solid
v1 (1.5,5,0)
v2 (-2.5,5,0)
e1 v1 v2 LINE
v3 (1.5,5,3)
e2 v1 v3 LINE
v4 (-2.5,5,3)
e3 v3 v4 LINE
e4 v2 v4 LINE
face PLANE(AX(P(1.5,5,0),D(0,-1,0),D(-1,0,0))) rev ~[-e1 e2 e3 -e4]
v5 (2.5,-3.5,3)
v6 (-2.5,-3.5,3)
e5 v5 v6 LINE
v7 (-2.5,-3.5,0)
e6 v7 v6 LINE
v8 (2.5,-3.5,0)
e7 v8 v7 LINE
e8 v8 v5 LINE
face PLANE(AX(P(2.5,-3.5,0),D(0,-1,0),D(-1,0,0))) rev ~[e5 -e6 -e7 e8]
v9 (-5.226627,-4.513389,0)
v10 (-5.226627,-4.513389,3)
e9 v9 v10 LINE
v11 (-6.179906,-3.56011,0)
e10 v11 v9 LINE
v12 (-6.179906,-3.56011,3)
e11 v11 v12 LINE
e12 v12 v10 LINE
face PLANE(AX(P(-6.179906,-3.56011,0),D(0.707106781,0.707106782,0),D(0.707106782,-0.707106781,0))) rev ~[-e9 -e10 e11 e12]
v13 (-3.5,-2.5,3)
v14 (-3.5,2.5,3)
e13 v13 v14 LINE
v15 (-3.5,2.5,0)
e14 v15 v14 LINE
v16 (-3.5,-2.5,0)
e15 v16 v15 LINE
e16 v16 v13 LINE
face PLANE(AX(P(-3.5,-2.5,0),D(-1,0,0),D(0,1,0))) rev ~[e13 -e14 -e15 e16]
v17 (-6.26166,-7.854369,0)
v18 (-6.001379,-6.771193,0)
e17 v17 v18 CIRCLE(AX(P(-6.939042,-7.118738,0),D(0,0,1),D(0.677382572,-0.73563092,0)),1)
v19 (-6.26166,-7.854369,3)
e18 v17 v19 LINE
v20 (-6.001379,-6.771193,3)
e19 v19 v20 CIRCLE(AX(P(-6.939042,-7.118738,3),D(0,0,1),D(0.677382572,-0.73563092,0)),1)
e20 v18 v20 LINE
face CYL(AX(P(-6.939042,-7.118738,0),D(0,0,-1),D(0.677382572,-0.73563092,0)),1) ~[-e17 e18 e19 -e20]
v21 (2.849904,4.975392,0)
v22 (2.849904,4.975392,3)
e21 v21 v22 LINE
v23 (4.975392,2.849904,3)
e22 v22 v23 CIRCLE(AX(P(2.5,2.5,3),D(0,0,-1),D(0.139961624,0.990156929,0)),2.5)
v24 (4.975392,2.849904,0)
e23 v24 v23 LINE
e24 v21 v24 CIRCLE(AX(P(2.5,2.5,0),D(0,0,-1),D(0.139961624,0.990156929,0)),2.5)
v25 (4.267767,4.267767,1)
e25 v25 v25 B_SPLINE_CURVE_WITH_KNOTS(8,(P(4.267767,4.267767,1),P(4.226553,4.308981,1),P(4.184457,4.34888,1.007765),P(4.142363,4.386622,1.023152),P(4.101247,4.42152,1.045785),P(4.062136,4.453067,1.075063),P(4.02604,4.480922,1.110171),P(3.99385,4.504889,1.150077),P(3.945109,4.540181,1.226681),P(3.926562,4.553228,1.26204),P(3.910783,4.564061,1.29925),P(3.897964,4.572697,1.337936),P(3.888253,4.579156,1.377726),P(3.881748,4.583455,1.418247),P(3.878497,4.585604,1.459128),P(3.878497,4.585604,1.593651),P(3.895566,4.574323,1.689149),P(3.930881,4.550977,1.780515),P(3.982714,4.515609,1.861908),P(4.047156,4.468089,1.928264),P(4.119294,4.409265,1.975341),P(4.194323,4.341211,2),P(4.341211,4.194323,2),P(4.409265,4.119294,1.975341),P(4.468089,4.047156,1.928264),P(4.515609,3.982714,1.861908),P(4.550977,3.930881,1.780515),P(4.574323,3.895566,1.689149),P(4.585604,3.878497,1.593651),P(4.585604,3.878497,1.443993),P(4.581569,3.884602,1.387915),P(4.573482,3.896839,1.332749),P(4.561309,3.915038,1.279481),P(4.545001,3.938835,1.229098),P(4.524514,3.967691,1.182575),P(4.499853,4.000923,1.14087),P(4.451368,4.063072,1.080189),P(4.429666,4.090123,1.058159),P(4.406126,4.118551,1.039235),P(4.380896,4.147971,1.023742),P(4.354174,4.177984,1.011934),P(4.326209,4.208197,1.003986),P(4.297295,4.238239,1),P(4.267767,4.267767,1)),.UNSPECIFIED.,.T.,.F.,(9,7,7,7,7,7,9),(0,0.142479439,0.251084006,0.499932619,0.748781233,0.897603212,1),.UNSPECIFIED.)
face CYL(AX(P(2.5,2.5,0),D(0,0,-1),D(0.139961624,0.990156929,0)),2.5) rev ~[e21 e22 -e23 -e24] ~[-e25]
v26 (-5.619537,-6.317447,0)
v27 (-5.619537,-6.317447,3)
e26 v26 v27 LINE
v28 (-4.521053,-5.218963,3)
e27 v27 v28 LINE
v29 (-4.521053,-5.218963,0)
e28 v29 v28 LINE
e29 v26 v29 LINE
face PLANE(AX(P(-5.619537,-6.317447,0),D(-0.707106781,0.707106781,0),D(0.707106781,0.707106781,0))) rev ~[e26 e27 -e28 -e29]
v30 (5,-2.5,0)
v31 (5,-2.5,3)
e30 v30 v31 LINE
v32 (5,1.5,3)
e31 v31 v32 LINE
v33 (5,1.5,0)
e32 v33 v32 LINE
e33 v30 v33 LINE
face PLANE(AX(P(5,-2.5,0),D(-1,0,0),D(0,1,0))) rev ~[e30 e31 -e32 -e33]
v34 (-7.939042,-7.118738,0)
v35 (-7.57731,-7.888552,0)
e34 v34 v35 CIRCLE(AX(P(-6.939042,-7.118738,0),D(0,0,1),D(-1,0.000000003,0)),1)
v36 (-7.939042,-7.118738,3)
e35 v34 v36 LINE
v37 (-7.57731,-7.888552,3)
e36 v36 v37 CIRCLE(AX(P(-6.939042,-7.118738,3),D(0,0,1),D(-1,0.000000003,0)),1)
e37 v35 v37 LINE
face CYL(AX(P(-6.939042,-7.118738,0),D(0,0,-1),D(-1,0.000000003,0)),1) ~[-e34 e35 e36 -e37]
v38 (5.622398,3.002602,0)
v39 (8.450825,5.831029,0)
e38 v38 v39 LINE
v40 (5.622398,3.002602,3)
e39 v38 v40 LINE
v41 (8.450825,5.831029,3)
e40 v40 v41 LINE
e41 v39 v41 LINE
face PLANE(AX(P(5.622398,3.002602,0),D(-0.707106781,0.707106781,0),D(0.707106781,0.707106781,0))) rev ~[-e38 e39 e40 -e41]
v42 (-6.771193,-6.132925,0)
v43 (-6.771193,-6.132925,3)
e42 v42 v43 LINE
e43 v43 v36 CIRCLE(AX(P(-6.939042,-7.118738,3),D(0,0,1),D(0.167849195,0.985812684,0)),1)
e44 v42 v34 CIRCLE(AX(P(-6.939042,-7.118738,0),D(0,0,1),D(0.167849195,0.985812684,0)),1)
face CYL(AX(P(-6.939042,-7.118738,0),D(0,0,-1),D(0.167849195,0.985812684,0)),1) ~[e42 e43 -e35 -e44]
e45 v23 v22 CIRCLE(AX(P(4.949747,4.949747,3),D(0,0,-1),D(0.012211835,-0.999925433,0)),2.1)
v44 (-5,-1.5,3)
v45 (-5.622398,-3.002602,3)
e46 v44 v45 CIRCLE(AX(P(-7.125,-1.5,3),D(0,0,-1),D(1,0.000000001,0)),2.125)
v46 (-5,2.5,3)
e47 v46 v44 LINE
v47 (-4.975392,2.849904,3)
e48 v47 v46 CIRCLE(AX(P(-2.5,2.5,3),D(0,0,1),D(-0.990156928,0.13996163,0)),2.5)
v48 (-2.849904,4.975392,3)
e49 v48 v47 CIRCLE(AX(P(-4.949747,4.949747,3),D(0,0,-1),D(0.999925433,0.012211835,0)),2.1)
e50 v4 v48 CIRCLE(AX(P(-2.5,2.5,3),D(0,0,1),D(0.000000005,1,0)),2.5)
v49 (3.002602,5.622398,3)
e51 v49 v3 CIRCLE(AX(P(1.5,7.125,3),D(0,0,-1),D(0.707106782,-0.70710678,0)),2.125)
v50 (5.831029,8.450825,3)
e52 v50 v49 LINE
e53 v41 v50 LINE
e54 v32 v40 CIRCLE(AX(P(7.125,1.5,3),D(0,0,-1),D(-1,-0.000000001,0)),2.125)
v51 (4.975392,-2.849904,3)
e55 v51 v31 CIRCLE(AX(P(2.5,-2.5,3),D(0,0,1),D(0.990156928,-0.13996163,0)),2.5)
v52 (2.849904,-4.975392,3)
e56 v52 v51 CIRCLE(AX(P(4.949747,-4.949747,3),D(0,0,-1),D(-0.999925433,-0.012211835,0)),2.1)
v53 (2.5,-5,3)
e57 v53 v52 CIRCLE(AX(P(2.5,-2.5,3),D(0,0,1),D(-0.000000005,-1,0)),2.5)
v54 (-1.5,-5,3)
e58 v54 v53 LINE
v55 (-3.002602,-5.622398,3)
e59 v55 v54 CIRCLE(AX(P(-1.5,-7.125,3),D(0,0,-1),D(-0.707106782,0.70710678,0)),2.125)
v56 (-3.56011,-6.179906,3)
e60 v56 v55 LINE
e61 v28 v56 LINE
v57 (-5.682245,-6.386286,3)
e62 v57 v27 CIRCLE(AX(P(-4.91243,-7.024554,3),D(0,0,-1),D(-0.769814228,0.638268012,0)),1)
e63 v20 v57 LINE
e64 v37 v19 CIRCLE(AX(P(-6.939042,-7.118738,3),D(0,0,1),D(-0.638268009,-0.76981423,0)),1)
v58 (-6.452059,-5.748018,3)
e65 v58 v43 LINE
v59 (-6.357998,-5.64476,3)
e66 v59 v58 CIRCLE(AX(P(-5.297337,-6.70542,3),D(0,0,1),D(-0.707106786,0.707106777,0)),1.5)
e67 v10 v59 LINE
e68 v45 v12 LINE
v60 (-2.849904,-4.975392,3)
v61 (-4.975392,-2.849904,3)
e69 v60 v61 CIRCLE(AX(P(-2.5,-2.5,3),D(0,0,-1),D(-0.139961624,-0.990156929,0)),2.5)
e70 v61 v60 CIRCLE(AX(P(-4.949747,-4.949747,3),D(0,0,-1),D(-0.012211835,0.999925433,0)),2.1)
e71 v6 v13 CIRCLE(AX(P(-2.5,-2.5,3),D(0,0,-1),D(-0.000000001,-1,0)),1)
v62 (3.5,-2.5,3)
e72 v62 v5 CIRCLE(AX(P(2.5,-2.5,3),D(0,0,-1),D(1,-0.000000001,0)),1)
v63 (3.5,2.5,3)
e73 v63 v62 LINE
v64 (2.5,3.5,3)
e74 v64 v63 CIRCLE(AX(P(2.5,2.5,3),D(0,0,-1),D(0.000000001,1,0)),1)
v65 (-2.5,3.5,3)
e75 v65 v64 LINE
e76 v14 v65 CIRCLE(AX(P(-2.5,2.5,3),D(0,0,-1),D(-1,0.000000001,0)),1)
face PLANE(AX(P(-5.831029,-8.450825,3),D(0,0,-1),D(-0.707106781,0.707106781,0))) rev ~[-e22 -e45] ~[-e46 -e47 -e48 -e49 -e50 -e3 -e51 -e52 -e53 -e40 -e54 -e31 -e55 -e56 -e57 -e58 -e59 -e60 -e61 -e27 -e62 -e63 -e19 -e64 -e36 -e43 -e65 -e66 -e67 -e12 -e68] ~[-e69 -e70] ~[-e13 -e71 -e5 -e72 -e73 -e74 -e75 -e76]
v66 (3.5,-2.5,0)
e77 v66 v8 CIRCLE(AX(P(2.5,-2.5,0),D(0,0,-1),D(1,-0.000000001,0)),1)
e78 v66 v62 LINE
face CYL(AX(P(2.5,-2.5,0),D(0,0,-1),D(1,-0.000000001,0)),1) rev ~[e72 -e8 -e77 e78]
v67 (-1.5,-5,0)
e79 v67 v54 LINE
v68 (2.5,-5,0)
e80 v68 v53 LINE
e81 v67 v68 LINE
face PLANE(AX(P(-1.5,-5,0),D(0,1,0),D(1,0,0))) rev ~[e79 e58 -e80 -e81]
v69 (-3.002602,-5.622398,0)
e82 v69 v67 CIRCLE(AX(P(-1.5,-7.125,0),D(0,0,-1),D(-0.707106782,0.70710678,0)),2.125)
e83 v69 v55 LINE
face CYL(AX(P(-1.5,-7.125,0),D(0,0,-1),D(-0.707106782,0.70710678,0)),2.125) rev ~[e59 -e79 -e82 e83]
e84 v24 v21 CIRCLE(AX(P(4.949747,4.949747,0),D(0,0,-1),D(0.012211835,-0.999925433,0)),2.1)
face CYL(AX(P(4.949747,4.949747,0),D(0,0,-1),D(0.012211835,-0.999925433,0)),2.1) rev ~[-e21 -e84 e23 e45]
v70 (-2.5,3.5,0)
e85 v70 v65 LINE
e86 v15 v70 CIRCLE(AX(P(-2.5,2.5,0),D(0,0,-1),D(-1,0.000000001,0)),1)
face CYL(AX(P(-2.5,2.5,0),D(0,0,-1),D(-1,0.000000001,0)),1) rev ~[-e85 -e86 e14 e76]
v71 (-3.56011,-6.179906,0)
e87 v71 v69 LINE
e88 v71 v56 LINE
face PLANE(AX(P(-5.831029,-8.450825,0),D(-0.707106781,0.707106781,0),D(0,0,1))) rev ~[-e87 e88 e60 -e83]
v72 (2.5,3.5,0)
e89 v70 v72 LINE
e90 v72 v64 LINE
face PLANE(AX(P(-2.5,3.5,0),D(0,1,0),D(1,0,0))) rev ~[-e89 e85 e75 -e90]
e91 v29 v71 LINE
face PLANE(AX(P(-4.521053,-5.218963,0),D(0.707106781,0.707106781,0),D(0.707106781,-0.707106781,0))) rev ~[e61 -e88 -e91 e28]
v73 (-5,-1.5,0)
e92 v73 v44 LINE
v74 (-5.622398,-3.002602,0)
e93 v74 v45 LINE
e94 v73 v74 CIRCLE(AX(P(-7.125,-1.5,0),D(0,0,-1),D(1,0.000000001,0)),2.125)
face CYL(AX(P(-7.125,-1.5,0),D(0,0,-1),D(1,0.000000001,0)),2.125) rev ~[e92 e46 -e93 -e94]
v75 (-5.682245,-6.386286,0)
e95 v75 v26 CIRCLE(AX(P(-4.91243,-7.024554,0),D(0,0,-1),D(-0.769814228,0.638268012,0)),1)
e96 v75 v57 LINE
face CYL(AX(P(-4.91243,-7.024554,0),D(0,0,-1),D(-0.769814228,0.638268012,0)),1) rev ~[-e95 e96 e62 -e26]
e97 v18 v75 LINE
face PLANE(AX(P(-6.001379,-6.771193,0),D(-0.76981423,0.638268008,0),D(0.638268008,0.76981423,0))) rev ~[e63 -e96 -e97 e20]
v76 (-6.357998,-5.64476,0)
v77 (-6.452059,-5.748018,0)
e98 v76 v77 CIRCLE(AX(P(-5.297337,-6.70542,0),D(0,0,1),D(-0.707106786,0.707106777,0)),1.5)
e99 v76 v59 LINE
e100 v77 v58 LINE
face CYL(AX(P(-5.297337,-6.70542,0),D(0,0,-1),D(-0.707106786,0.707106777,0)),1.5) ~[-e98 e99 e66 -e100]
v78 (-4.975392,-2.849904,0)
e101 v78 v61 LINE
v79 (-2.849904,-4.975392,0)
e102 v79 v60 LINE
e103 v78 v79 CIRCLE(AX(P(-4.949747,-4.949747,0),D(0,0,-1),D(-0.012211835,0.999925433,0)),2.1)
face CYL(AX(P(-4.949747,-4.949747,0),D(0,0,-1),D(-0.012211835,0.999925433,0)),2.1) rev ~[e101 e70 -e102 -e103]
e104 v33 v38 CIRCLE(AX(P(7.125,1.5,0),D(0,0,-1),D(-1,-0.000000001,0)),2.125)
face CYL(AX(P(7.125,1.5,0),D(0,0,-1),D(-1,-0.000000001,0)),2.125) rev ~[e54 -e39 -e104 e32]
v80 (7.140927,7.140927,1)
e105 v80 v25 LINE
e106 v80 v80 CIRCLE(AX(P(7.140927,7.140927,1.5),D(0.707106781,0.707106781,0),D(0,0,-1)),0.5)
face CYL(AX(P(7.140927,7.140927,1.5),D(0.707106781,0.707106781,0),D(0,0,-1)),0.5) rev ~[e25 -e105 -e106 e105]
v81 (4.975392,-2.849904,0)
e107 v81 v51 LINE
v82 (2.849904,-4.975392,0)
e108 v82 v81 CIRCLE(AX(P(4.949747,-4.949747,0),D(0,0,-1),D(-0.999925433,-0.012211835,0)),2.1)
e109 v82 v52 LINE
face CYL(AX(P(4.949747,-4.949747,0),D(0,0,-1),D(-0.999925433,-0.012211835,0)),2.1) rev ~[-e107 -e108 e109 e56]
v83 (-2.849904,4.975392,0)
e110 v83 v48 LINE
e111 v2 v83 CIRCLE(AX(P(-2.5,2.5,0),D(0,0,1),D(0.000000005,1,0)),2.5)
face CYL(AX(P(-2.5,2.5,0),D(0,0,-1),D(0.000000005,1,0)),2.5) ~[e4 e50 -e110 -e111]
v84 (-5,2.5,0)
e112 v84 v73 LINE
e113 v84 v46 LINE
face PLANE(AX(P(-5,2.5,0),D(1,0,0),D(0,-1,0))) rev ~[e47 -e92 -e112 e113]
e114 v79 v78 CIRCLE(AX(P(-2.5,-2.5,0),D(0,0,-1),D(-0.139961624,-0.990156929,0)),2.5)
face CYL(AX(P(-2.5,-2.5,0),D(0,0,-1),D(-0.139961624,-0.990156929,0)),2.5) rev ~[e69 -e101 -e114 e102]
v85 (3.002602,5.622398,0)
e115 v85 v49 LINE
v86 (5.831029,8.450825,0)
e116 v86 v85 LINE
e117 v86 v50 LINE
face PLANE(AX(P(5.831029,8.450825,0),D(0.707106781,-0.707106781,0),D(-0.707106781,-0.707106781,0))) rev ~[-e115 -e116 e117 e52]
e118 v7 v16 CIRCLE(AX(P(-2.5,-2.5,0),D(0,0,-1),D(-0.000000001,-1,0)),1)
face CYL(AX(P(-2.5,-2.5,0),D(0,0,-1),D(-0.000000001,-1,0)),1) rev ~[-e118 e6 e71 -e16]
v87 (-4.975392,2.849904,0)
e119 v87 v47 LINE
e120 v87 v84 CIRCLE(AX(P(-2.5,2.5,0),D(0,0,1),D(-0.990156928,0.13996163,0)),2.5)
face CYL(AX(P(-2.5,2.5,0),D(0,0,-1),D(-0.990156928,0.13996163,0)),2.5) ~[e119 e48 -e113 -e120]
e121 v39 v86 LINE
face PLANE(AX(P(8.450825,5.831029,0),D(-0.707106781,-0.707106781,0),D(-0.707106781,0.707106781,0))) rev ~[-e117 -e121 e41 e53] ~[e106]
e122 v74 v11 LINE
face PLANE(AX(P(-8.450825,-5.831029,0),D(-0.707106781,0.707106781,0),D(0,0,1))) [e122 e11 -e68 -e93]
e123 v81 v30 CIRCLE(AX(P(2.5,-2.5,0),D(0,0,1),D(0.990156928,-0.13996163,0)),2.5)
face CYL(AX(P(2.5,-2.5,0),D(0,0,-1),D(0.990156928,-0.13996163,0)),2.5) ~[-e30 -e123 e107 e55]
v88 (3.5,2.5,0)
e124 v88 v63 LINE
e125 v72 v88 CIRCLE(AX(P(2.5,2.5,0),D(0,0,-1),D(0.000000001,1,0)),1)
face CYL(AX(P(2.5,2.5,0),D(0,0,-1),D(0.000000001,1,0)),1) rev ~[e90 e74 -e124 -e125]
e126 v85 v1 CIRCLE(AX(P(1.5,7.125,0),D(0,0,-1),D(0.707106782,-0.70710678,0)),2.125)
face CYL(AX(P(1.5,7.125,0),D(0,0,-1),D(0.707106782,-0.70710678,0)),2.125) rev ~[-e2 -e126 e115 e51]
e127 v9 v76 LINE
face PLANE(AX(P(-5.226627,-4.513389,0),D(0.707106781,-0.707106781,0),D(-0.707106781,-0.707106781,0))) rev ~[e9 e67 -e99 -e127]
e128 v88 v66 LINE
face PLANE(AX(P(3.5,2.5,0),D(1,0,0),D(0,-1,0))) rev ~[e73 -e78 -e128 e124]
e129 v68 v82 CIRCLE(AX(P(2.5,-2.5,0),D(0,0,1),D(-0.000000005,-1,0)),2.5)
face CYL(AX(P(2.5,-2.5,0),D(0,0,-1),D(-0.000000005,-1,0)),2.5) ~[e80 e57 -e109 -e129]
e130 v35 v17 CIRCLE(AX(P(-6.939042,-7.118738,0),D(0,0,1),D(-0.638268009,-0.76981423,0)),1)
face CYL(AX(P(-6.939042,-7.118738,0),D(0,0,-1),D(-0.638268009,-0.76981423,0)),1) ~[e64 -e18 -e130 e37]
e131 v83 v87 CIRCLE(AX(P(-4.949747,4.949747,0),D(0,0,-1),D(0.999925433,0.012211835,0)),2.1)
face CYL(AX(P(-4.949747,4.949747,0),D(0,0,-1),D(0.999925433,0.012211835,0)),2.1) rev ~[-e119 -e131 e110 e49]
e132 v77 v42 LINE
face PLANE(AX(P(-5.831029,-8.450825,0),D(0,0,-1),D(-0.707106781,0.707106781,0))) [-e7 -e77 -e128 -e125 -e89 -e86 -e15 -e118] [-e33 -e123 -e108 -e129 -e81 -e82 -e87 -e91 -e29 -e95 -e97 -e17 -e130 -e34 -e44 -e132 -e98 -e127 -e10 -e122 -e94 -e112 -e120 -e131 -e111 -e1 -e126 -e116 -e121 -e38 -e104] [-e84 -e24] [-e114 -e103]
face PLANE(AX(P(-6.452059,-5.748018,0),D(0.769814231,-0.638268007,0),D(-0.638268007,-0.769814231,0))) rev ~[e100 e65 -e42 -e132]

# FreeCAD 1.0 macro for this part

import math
import FreeCAD as App
import Part
import Sketcher
Q = App.Units.Quantity

doc = App.newDocument("Part")
params = doc.addObject("Spreadsheet::Sheet", "Params")
for row, (alias, value) in enumerate([
    ("sketch1_radius", "1 mm"),
    ("sketch1_radius2", "2.5 mm"),
    ("sketch1_radius3", "2.1 mm"),
    ("sketch1_width", "4 mm"),
    ("sketch1_width2", "5 mm"),
    ("pad1_length", "3 mm"),
    ("sketch2_width", "3 mm"),
    ("pad2_length", "1 mm"),
    ("sketch3_diameter", "1 mm"),
    ("sketch4_radius", "1 mm"),
    ("sketch4_radius2", "1.5 mm"),
    ("sketch4_length", "0.5 mm"),
    ("sketch4_length2", "1.6 mm"),
    ("pocket2_length", "3 mm"),
], start=1):
    params.set(f"A{row}", alias)
    params.set(f"B{row}", "=" + value)
    params.setAlias(f"B{row}", alias)

body = doc.addObject("PartDesign::Body", "Body")

# Sketch on XY plane
sketch1 = body.newObject("Sketcher::SketchObject", "Sketch")
sketch1.AttachmentSupport = (doc.getObject("XY_Plane"), [""])
sketch1.MapMode = "FlatFace"
sketch1.addGeometry(Part.ArcOfCircle(Part.Circle(App.Vector(-2.5, 2.5, 0), App.Vector(0, 0, 1), 2.5), math.radians(171.954374), math.radians(180)), False)
sketch1.addGeometry(Part.LineSegment(App.Vector(-5, 2.5, 0), App.Vector(-5, -1.5, 0)), False)
sketch1.addGeometry(Part.ArcOfCircle(Part.Circle(App.Vector(-7.125, -1.5, 0), App.Vector(0, 0, 1), 2.125), math.radians(-45), math.radians(0)), False)
sketch1.addGeometry(Part.LineSegment(App.Vector(-5.622398, -3.002602, 0), App.Vector(-8.450825, -5.831029, 0)), False)
sketch1.addGeometry(Part.LineSegment(App.Vector(-8.450825, -5.831029, 0), App.Vector(-5.831029, -8.450825, 0)), False)
sketch1.addGeometry(Part.LineSegment(App.Vector(-5.831029, -8.450825, 0), App.Vector(-3.002602, -5.622398, 0)), False)
sketch1.addGeometry(Part.ArcOfCircle(Part.Circle(App.Vector(-1.5, -7.125, 0), App.Vector(0, 0, 1), 2.125), math.radians(90), math.radians(135)), False)
sketch1.addGeometry(Part.LineSegment(App.Vector(-1.5, -5, 0), App.Vector(2.5, -5, 0)), False)
sketch1.addGeometry(Part.ArcOfCircle(Part.Circle(App.Vector(2.5, -2.5, 0), App.Vector(0, 0, 1), 2.5), math.radians(-90), math.radians(-81.954374)), False)
sketch1.addGeometry(Part.ArcOfCircle(Part.Circle(App.Vector(4.949747, -4.949747, 0), App.Vector(0, 0, 1), 2.1), math.radians(89.300296), math.radians(180.699704)), False)
sketch1.addGeometry(Part.ArcOfCircle(Part.Circle(App.Vector(2.5, -2.5, 0), App.Vector(0, 0, 1), 2.5), math.radians(-8.045626), math.radians(0)), False)
sketch1.addGeometry(Part.LineSegment(App.Vector(5, -2.5, 0), App.Vector(5, 1.5, 0)), False)
sketch1.addGeometry(Part.ArcOfCircle(Part.Circle(App.Vector(7.125, 1.5, 0), App.Vector(0, 0, 1), 2.125), math.radians(135), math.radians(180)), False)
sketch1.addGeometry(Part.LineSegment(App.Vector(5.622398, 3.002602, 0), App.Vector(8.450825, 5.831029, 0)), False)
sketch1.addGeometry(Part.LineSegment(App.Vector(8.450825, 5.831029, 0), App.Vector(5.831029, 8.450825, 0)), False)
sketch1.addGeometry(Part.LineSegment(App.Vector(5.831029, 8.450825, 0), App.Vector(3.002602, 5.622398, 0)), False)
sketch1.addGeometry(Part.ArcOfCircle(Part.Circle(App.Vector(1.5, 7.125, 0), App.Vector(0, 0, 1), 2.125), math.radians(-90), math.radians(-45)), False)
sketch1.addGeometry(Part.LineSegment(App.Vector(1.5, 5, 0), App.Vector(-2.5, 5, 0)), False)
sketch1.addGeometry(Part.ArcOfCircle(Part.Circle(App.Vector(-2.5, 2.5, 0), App.Vector(0, 0, 1), 2.5), math.radians(90), math.radians(98.045626)), False)
sketch1.addGeometry(Part.ArcOfCircle(Part.Circle(App.Vector(-4.949747, 4.949747, 0), App.Vector(0, 0, 1), 2.1), math.radians(-90.699704), math.radians(0.699704)), False)
sketch1.addGeometry(Part.ArcOfCircle(Part.Circle(App.Vector(4.949747, 4.949747, 0), App.Vector(0, 0, 1), 2.1), math.radians(179.300296), math.radians(270.699704)), False)
sketch1.addGeometry(Part.ArcOfCircle(Part.Circle(App.Vector(2.5, 2.5, 0), App.Vector(0, 0, 1), 2.5), math.radians(8.045626), math.radians(81.954374)), False)
sketch1.addGeometry(Part.ArcOfCircle(Part.Circle(App.Vector(-4.949747, -4.949747, 0), App.Vector(0, 0, 1), 2.1), math.radians(-0.699704), math.radians(90.699704)), False)
sketch1.addGeometry(Part.ArcOfCircle(Part.Circle(App.Vector(-2.5, -2.5, 0), App.Vector(0, 0, 1), 2.5), math.radians(-171.954374), math.radians(-98.045626)), False)
sketch1.addGeometry(Part.LineSegment(App.Vector(-3.5, -2.5, 0), App.Vector(-3.5, 2.5, 0)), False)
sketch1.addGeometry(Part.ArcOfCircle(Part.Circle(App.Vector(-2.5, 2.5, 0), App.Vector(0, 0, 1), 1), math.radians(90), math.radians(180)), False)
sketch1.addGeometry(Part.LineSegment(App.Vector(-2.5, 3.5, 0), App.Vector(2.5, 3.5, 0)), False)
sketch1.addGeometry(Part.ArcOfCircle(Part.Circle(App.Vector(2.5, 2.5, 0), App.Vector(0, 0, 1), 1), math.radians(0), math.radians(90)), False)
sketch1.addGeometry(Part.LineSegment(App.Vector(3.5, 2.5, 0), App.Vector(3.5, -2.5, 0)), False)
sketch1.addGeometry(Part.ArcOfCircle(Part.Circle(App.Vector(2.5, -2.5, 0), App.Vector(0, 0, 1), 1), math.radians(-90), math.radians(0)), False)
sketch1.addGeometry(Part.LineSegment(App.Vector(2.5, -3.5, 0), App.Vector(-2.5, -3.5, 0)), False)
sketch1.addGeometry(Part.ArcOfCircle(Part.Circle(App.Vector(-2.5, -2.5, 0), App.Vector(0, 0, 1), 1), math.radians(-180), math.radians(-90)), False)
sketch1.addConstraint(Sketcher.Constraint("Tangent", 0, 2, 1, 1))
sketch1.addConstraint(Sketcher.Constraint("Tangent", 1, 2, 2, 2))
sketch1.addConstraint(Sketcher.Constraint("Tangent", 2, 1, 3, 1))
sketch1.addConstraint(Sketcher.Constraint("Coincident", 3, 2, 4, 1))
sketch1.addConstraint(Sketcher.Constraint("Coincident", 4, 2, 5, 1))
sketch1.addConstraint(Sketcher.Constraint("Tangent", 5, 2, 6, 2))
sketch1.addConstraint(Sketcher.Constraint("Tangent", 6, 1, 7, 1))
sketch1.addConstraint(Sketcher.Constraint("Tangent", 7, 2, 8, 1))
sketch1.addConstraint(Sketcher.Constraint("Coincident", 8, 2, 9, 2))
sketch1.addConstraint(Sketcher.Constraint("Coincident", 9, 1, 10, 1))
sketch1.addConstraint(Sketcher.Constraint("Tangent", 10, 2, 11, 1))
sketch1.addConstraint(Sketcher.Constraint("Tangent", 11, 2, 12, 2))
sketch1.addConstraint(Sketcher.Constraint("Tangent", 12, 1, 13, 1))
sketch1.addConstraint(Sketcher.Constraint("Coincident", 13, 2, 14, 1))
sketch1.addConstraint(Sketcher.Constraint("Coincident", 14, 2, 15, 1))
sketch1.addConstraint(Sketcher.Constraint("Tangent", 15, 2, 16, 2))
sketch1.addConstraint(Sketcher.Constraint("Tangent", 16, 1, 17, 1))
sketch1.addConstraint(Sketcher.Constraint("Tangent", 17, 2, 18, 1))
sketch1.addConstraint(Sketcher.Constraint("Coincident", 18, 2, 19, 2))
sketch1.addConstraint(Sketcher.Constraint("Coincident", 19, 1, 0, 1))
sketch1.addConstraint(Sketcher.Constraint("Coincident", 20, 1, 21, 2))
sketch1.addConstraint(Sketcher.Constraint("Coincident", 21, 1, 20, 2))
sketch1.addConstraint(Sketcher.Constraint("Coincident", 22, 1, 23, 2))
sketch1.addConstraint(Sketcher.Constraint("Coincident", 23, 1, 22, 2))
sketch1.addConstraint(Sketcher.Constraint("Tangent", 24, 2, 25, 2))
sketch1.addConstraint(Sketcher.Constraint("Tangent", 25, 1, 26, 1))
sketch1.addConstraint(Sketcher.Constraint("Tangent", 26, 2, 27, 2))
sketch1.addConstraint(Sketcher.Constraint("Tangent", 27, 1, 28, 1))
sketch1.addConstraint(Sketcher.Constraint("Tangent", 28, 2, 29, 2))
sketch1.addConstraint(Sketcher.Constraint("Tangent", 29, 1, 30, 1))
sketch1.addConstraint(Sketcher.Constraint("Tangent", 30, 2, 31, 2))
sketch1.addConstraint(Sketcher.Constraint("Tangent", 31, 1, 24, 1))
sketch1.addConstraint(Sketcher.Constraint("Vertical", 1))
sketch1.addConstraint(Sketcher.Constraint("Horizontal", 7))
sketch1.addConstraint(Sketcher.Constraint("Vertical", 11))
sketch1.addConstraint(Sketcher.Constraint("Horizontal", 17))
sketch1.addConstraint(Sketcher.Constraint("Vertical", 24))
sketch1.addConstraint(Sketcher.Constraint("Horizontal", 26))
sketch1.addConstraint(Sketcher.Constraint("Vertical", 28))
sketch1.addConstraint(Sketcher.Constraint("Horizontal", 30))
sketch1.addConstraint(Sketcher.Constraint("Coincident", 10, 3, 8, 3))
sketch1.addConstraint(Sketcher.Constraint("Coincident", 18, 3, 0, 3))
sketch1.addConstraint(Sketcher.Constraint("Coincident", 25, 3, 0, 3))
sketch1.addConstraint(Sketcher.Constraint("Coincident", 27, 3, 21, 3))
sketch1.addConstraint(Sketcher.Constraint("Coincident", 29, 3, 8, 3))
sketch1.addConstraint(Sketcher.Constraint("Coincident", 31, 3, 23, 3))
sketch1.addConstraint(Sketcher.Constraint("Equal", 2, 6))
sketch1.addConstraint(Sketcher.Constraint("Equal", 0, 8))
sketch1.addConstraint(Sketcher.Constraint("Equal", 8, 10))
sketch1.addConstraint(Sketcher.Constraint("Equal", 6, 12))
sketch1.addConstraint(Sketcher.Constraint("Equal", 12, 16))
sketch1.addConstraint(Sketcher.Constraint("Equal", 10, 18))
sketch1.addConstraint(Sketcher.Constraint("Equal", 9, 19))
sketch1.addConstraint(Sketcher.Constraint("Equal", 19, 20))
sketch1.addConstraint(Sketcher.Constraint("Equal", 18, 21))
sketch1.addConstraint(Sketcher.Constraint("Equal", 20, 22))
sketch1.addConstraint(Sketcher.Constraint("Equal", 21, 23))
sketch1.addConstraint(Sketcher.Constraint("Equal", 25, 27))
sketch1.addConstraint(Sketcher.Constraint("Equal", 27, 29))
sketch1.addConstraint(Sketcher.Constraint("Equal", 29, 31))
sketch1.addConstraint(Sketcher.Constraint("Symmetric", 0, 3, 8, 3, -1, 1))
sketch1.addConstraint(Sketcher.Constraint("Symmetric", 9, 3, 19, 3, -1, 1))
sketch1.addConstraint(Sketcher.Constraint("Symmetric", 20, 3, 22, 3, -1, 1))
sketch1.addConstraint(Sketcher.Constraint("Symmetric", 2, 1, 12, 1, -1, 1))
sketch1.addConstraint(Sketcher.Constraint("Symmetric", 4, 2, 14, 2, -1, 1))
sketch1.addConstraint(Sketcher.Constraint("Symmetric", 19, 3, 20, 3, -2))
sketch1.addConstraint(Sketcher.Constraint("Perpendicular", 3, 4))
sketch1.addConstraint(Sketcher.Constraint("Perpendicular", 4, 5))
sketch1.addConstraint(Sketcher.Constraint("Perpendicular", 13, 14))
sketch1.addConstraint(Sketcher.Constraint("Perpendicular", 14, 15))
sketch1.addConstraint(Sketcher.Constraint("Equal", 17, 1))
sketch1.addConstraint(Sketcher.Constraint("Equal", 30, 24))
sketch1.addConstraint(Sketcher.Constraint("Equal", 3, 5))
sketch1.addConstraint(Sketcher.Constraint("Radius", 25, Q("1 mm")))
sketch1.addConstraint(Sketcher.Constraint("Radius", 0, Q("2.5 mm")))
sketch1.addConstraint(Sketcher.Constraint("Radius", 9, Q("2.1 mm")))
sketch1.addConstraint(Sketcher.Constraint("DistanceX", 7, 1, 7, 2, Q("4 mm")))
sketch1.addConstraint(Sketcher.Constraint("DistanceX", 26, 1, 26, 2, Q("5 mm")))
sketch1.addConstraint(Sketcher.Constraint("Distance", 3, Q("4 mm")))
sketch1.addConstraint(Sketcher.Constraint("Radius", 2, Q("2.125 mm")))
sketch1.addConstraint(Sketcher.Constraint("DistanceX", 2, 1, 22, 3, Q("0.672651 mm")))
sketch1.addConstraint(Sketcher.Constraint("DistanceY", 3, 2, 22, 3, Q("0.881282 mm")))
sketch1.setExpression("Constraints[73]", "Params.sketch1_radius")
sketch1.setExpression("Constraints[74]", "Params.sketch1_radius2")
sketch1.setExpression("Constraints[75]", "Params.sketch1_radius3")
sketch1.setExpression("Constraints[76]", "Params.sketch1_width")
sketch1.setExpression("Constraints[77]", "Params.sketch1_width2")
pad1 = body.newObject("PartDesign::Pad", "Pad")
pad1.Profile = sketch1
pad1.setExpression("Length", "Params.pad1_length")

# Sketch on an angled plane
sketch2 = body.newObject("Sketcher::SketchObject", "Sketch001")
sketch2.Placement = App.Placement(App.Vector(-7.140927, -7.140927, 0), App.Rotation(App.Vector(0, 0, 1), App.Vector(-0.707106781, 0.707106781, 0), App.Vector(-0.707106781, -0.707106781, 0), "ZXY"))
sketch2.addGeometry(Part.LineSegment(App.Vector(0, 1.852476, 0), App.Vector(0, -1.852476, 0)), False)
sketch2.addGeometry(Part.LineSegment(App.Vector(0, -1.852476, 0), App.Vector(3, -1.852476, 0)), False)
sketch2.addGeometry(Part.LineSegment(App.Vector(3, -1.852476, 0), App.Vector(3, 1.852476, 0)), False)
sketch2.addGeometry(Part.LineSegment(App.Vector(3, 1.852476, 0), App.Vector(0, 1.852476, 0)), False)
sketch2.addConstraint(Sketcher.Constraint("Coincident", 0, 2, 1, 1))
sketch2.addConstraint(Sketcher.Constraint("Coincident", 1, 2, 2, 1))
sketch2.addConstraint(Sketcher.Constraint("Coincident", 2, 2, 3, 1))
sketch2.addConstraint(Sketcher.Constraint("Coincident", 3, 2, 0, 1))
sketch2.addConstraint(Sketcher.Constraint("Vertical", 0))
sketch2.addConstraint(Sketcher.Constraint("Horizontal", 1))
sketch2.addConstraint(Sketcher.Constraint("Vertical", 2))
sketch2.addConstraint(Sketcher.Constraint("Horizontal", 3))
sketch2.addConstraint(Sketcher.Constraint("Symmetric", 0, 2, 3, 2, -1, 1))
sketch2.addConstraint(Sketcher.Constraint("DistanceX", 1, 1, 1, 2, Q("3 mm")))
sketch2.addConstraint(Sketcher.Constraint("DistanceY", 0, 2, 0, 1, Q("3.704951 mm")))
sketch2.setExpression("Constraints[9]", "Params.sketch2_width")
pad2 = body.newObject("PartDesign::Pad", "Pad001")
pad2.Profile = sketch2
pad2.setExpression("Length", "Params.pad2_length")

# Sketch on an angled plane
sketch3 = body.newObject("Sketcher::SketchObject", "Sketch002")
sketch3.Placement = App.Placement(App.Vector(7.140927, 7.140927, 0), App.Rotation(App.Vector(0, 0, -1), App.Vector(-0.707106781, 0.707106781, 0), App.Vector(0.707106781, 0.707106781, 0), "ZXY"))
sketch3.addGeometry(Part.Circle(App.Vector(-1.5, 0, 0), App.Vector(0, 0, 1), 0.5), False)
sketch3.addConstraint(Sketcher.Constraint("PointOnObject", 0, 3, -1))
sketch3.addConstraint(Sketcher.Constraint("Diameter", 0, Q("1 mm")))
sketch3.addConstraint(Sketcher.Constraint("DistanceX", 0, 3, -1, 1, Q("1.5 mm")))
sketch3.setExpression("Constraints[1]", "Params.sketch3_diameter")
pocket1 = body.newObject("PartDesign::Pocket", "Pocket")
pocket1.Profile = sketch3
pocket1.Type = "UpToFirst"

# Sketch on XY plane
sketch4 = body.newObject("Sketcher::SketchObject", "Sketch003")
sketch4.AttachmentSupport = (doc.getObject("XY_Plane"), [""])
sketch4.MapMode = "FlatFace"
sketch4.addGeometry(Part.ArcOfCircle(Part.Circle(App.Vector(-6.939042, -7.118738, 0), App.Vector(0, 0, 1), 1), math.radians(180), math.radians(230.33721)), False)
sketch4.addGeometry(Part.ArcOfCircle(Part.Circle(App.Vector(-6.939042, -7.118738, 0), App.Vector(0, 0, 1), 1), math.radians(-129.66279), math.radians(-47.360555)), False)
sketch4.addGeometry(Part.ArcOfCircle(Part.Circle(App.Vector(-6.939042, -7.118738, 0), App.Vector(0, 0, 1), 1), math.radians(-47.360555), math.radians(20.33721)), False)
sketch4.addGeometry(Part.LineSegment(App.Vector(-6.001379, -6.771193, 0), App.Vector(-5.682245, -6.386286, 0)), False)
sketch4.addGeometry(Part.ArcOfCircle(Part.Circle(App.Vector(-4.91243, -7.024554, 0), App.Vector(0, 0, 1), 1), math.radians(135.000001), math.radians(140.33721)), False)
sketch4.addGeometry(Part.LineSegment(App.Vector(-5.619537, -6.317447, 0), App.Vector(-4.521053, -5.218963, 0)), False)
sketch4.addGeometry(Part.LineSegment(App.Vector(-4.521053, -5.218963, 0), App.Vector(-3.56011, -6.179906, 0)), False)
sketch4.addGeometry(Part.LineSegment(App.Vector(-3.56011, -6.179906, 0), App.Vector(-3.998619, -6.618415, 0)), False)
sketch4.addGeometry(Part.ArcOfCircle(Part.Circle(App.Vector(-4.91243, -7.024554, 0), App.Vector(0, 0, 1), 1), math.radians(-39.662789), math.radians(23.9625)), False)
sketch4.addGeometry(Part.ArcOfCircle(Part.Circle(App.Vector(-4.91243, -7.024554, 0), App.Vector(0, 0, 1), 1), math.radians(-113.9625), math.radians(-39.662789)), False)
sketch4.addGeometry(Part.LineSegment(App.Vector(-5.318569, -7.938365, 0), App.Vector(-6.538136, -9.157932, 0)), False)
sketch4.addGeometry(Part.LineSegment(App.Vector(-6.538136, -9.157932, 0), App.Vector(-9.157932, -6.538136, 0)), False)
sketch4.addGeometry(Part.LineSegment(App.Vector(-9.157932, -6.538136, 0), App.Vector(-6.179906, -3.56011, 0)), False)
sketch4.addGeometry(Part.LineSegment(App.Vector(-6.179906, -3.56011, 0), App.Vector(-5.226627, -4.513389, 0)), False)
sketch4.addGeometry(Part.LineSegment(App.Vector(-5.226627, -4.513389, 0), App.Vector(-6.357998, -5.64476, 0)), False)
sketch4.addGeometry(Part.ArcOfCircle(Part.Circle(App.Vector(-5.297337, -6.70542, 0), App.Vector(0, 0, 1), 1.5), math.radians(135), math.radians(140.337209)), False)
sketch4.addGeometry(Part.LineSegment(App.Vector(-6.452059, -5.748018, 0), App.Vector(-6.771193, -6.132925, 0)), False)
sketch4.addGeometry(Part.ArcOfCircle(Part.Circle(App.Vector(-6.939042, -7.118738, 0), App.Vector(0, 0, 1), 1), math.radians(80.33721), math.radians(180)), False)
sketch4.addConstraint(Sketcher.Constraint("Tangent", 0, 2, 1, 1))
sketch4.addConstraint(Sketcher.Constraint("Tangent", 1, 2, 2, 1))
sketch4.addConstraint(Sketcher.Constraint("Coincident", 2, 2, 3, 1))
sketch4.addConstraint(Sketcher.Constraint("Tangent", 3, 2, 4, 2))
sketch4.addConstraint(Sketcher.Constraint("Tangent", 4, 1, 5, 1))
sketch4.addConstraint(Sketcher.Constraint("Coincident", 5, 2, 6, 1))
sketch4.addConstraint(Sketcher.Constraint("Coincident", 6, 2, 7, 1))
sketch4.addConstraint(Sketcher.Constraint("Coincident", 7, 2, 8, 2))
sketch4.addConstraint(Sketcher.Constraint("Tangent", 8, 1, 9, 2))
sketch4.addConstraint(Sketcher.Constraint("Coincident", 9, 1, 10, 1))
sketch4.addConstraint(Sketcher.Constraint("Coincident", 10, 2, 11, 1))
sketch4.addConstraint(Sketcher.Constraint("Coincident", 11, 2, 12, 1))
sketch4.addConstraint(Sketcher.Constraint("Coincident", 12, 2, 13, 1))
sketch4.addConstraint(Sketcher.Constraint("Coincident", 13, 2, 14, 1))
sketch4.addConstraint(Sketcher.Constraint("Tangent", 14, 2, 15, 1))
sketch4.addConstraint(Sketcher.Constraint("Tangent", 15, 2, 16, 1))
sketch4.addConstraint(Sketcher.Constraint("Coincident", 16, 2, 17, 1))
sketch4.addConstraint(Sketcher.Constraint("Tangent", 17, 2, 0, 1))
sketch4.addConstraint(Sketcher.Constraint("Coincident", 2, 3, 0, 3))
sketch4.addConstraint(Sketcher.Constraint("Coincident", 8, 3, 4, 3))
sketch4.addConstraint(Sketcher.Constraint("Equal", 2, 4))
sketch4.addConstraint(Sketcher.Constraint("Equal", 4, 8))
sketch4.addConstraint(Sketcher.Constraint("Equal", 8, 9))
sketch4.addConstraint(Sketcher.Constraint("Equal", 9, 17))
sketch4.addConstraint(Sketcher.Constraint("Perpendicular", 5, 6))
sketch4.addConstraint(Sketcher.Constraint("Perpendicular", 6, 7))
sketch4.addConstraint(Sketcher.Constraint("Parallel", 7, 10))
sketch4.addConstraint(Sketcher.Constraint("Perpendicular", 10, 11))
sketch4.addConstraint(Sketcher.Constraint("Perpendicular", 11, 12))
sketch4.addConstraint(Sketcher.Constraint("Perpendicular", 12, 13))
sketch4.addConstraint(Sketcher.Constraint("Perpendicular", 13, 14))
sketch4.addConstraint(Sketcher.Constraint("Parallel", 3, 16))
sketch4.addConstraint(Sketcher.Constraint("Horizontal", 2, 3, 17, 2))
sketch4.addConstraint(Sketcher.Constraint("Equal", 3, 16))
sketch4.addConstraint(Sketcher.Constraint("Radius", 0, Q("1 mm")))
sketch4.addConstraint(Sketcher.Constraint("Radius", 15, Q("1.5 mm")))
sketch4.addConstraint(Sketcher.Constraint("Angle", 5, Q("45 deg")))
sketch4.addConstraint(Sketcher.Constraint("Distance", 3, Q("0.5 mm")))
sketch4.addConstraint(Sketcher.Constraint("Distance", 14, Q("1.6 mm")))
sketch4.addConstraint(Sketcher.Constraint("DistanceX", 4, 1, 15, 3, Q("0.3222 mm")))
sketch4.addConstraint(Sketcher.Constraint("DistanceY", 8, 1, 15, 3, Q("0.957402 mm")))
sketch4.addConstraint(Sketcher.Constraint("DistanceY", 0, 3, 11, 2, Q("0.580602 mm")))
sketch4.addConstraint(Sketcher.Constraint("Distance", 5, Q("1.553491 mm")))
sketch4.addConstraint(Sketcher.Constraint("Distance", 6, Q("1.358979 mm")))
sketch4.addConstraint(Sketcher.Constraint("Distance", 11, Q("3.704951 mm")))
sketch4.addConstraint(Sketcher.Constraint("Distance", 13, Q("1.34814 mm")))
sketch4.addConstraint(Sketcher.Constraint("DistanceX", 4, 3, -1, 1, Q("4.91243 mm")))
sketch4.addConstraint(Sketcher.Constraint("DistanceY", 15, 3, -1, 1, Q("6.70542 mm")))
sketch4.addConstraint(Sketcher.Constraint("DistanceX", 0, 2, -1, 1, Q("7.57731 mm")))
sketch4.addConstraint(Sketcher.Constraint("DistanceY", 0, 2, -1, 1, Q("7.888552 mm")))
sketch4.addConstraint(Sketcher.Constraint("DistanceX", 1, 2, -1, 1, Q("6.26166 mm")))
sketch4.addConstraint(Sketcher.Constraint("DistanceY", 1, 2, -1, 1, Q("7.854369 mm")))
sketch4.setExpression("Constraints[34]", "Params.sketch4_radius")
sketch4.setExpression("Constraints[35]", "Params.sketch4_radius2")
sketch4.setExpression("Constraints[37]", "Params.sketch4_length")
sketch4.setExpression("Constraints[38]", "Params.sketch4_length2")
pocket2 = body.newObject("PartDesign::Pocket", "Pocket001")
pocket2.Profile = sketch4
pocket2.setExpression("Length", "Params.pocket2_length")
pocket2.Reversed = True

doc.recompute()
